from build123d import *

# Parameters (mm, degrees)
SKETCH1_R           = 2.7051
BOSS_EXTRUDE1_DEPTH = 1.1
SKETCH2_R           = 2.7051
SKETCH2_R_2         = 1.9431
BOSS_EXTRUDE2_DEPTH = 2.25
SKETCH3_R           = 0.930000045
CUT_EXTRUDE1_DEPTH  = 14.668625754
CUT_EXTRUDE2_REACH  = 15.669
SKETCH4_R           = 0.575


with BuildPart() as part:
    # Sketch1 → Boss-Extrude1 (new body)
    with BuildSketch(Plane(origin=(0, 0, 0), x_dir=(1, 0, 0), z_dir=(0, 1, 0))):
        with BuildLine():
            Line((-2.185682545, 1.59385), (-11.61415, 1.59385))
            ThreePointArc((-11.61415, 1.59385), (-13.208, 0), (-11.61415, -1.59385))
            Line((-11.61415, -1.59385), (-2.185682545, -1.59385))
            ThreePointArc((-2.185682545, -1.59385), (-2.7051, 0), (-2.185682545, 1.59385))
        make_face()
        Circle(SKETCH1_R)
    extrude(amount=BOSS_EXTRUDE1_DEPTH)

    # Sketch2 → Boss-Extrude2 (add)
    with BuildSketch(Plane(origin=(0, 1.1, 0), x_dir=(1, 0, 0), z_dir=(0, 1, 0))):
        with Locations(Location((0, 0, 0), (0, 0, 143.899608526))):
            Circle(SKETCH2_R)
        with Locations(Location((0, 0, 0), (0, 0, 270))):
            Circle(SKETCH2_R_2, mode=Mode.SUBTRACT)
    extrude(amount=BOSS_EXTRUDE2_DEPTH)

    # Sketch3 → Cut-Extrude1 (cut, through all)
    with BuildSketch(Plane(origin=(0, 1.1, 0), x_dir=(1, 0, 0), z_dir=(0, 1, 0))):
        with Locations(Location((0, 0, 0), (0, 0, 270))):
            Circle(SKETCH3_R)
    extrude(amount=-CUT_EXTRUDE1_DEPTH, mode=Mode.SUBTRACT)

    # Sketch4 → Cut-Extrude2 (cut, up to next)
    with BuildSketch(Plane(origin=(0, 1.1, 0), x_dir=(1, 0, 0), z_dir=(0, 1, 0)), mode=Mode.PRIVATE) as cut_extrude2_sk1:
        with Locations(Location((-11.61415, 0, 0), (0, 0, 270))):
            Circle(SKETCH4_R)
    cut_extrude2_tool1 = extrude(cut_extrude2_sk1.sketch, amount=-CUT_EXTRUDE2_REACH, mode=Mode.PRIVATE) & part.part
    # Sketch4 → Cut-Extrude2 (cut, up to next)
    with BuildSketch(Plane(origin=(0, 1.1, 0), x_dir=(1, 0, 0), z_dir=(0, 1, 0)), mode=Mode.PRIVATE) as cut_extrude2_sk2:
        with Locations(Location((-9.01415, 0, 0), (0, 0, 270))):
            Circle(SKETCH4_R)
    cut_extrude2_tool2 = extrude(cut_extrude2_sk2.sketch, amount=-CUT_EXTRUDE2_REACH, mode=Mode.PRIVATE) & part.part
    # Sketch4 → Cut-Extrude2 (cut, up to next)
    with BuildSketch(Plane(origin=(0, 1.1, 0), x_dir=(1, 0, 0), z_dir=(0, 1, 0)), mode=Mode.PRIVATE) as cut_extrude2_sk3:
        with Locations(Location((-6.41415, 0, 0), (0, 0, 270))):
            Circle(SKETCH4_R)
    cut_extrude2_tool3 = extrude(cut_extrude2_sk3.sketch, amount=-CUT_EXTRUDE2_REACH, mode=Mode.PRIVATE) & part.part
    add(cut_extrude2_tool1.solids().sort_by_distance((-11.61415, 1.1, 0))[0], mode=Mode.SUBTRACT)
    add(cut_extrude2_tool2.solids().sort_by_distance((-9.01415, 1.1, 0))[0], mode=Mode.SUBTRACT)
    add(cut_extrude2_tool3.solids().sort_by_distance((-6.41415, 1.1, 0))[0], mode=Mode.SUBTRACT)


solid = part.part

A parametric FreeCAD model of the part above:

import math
import FreeCAD as App
import Part
import Sketcher
from FreeCAD import Vector
Q = App.Units.Quantity

doc = App.newDocument("Part")
body = doc.addObject("PartDesign::Body", "Body")

sketch1 = doc.addObject("Sketcher::SketchObject", "Sketch")
body.addObject(sketch1)
sketch1.AttachmentSupport = (doc.XZ_Plane, [""])
sketch1.MapMode = "FlatFace"
sketch1.addGeometry([
    Part.LineSegment(Vector(-2.2, -1.6, 0), Vector(-11.6, -1.6, 0)),
    Part.ArcOfCircle(Part.Circle(Vector(-11.6, 0, 0), Vector(0, 0, 1), 1.6), math.radians(90), math.radians(270)),
    Part.LineSegment(Vector(-11.6, 1.6, 0), Vector(-2.2, 1.6, 0)),
    Part.ArcOfCircle(Part.Circle(Vector(0, 0, 0), Vector(0, 0, 1), 2.7), math.radians(-144), math.radians(144)),
], False)
sketch1.addConstraint([
    Sketcher.Constraint("Tangent", 0, 2, 1, 2),
    Sketcher.Constraint("Tangent", 1, 1, 2, 1),
    Sketcher.Constraint("Coincident", 2, 2, 3, 2),
    Sketcher.Constraint("Coincident", 3, 1, 0, 1),
    Sketcher.Constraint("Horizontal", 0),
    Sketcher.Constraint("Horizontal", 2),
    Sketcher.Constraint("Coincident", 3, 3, -1, 1),
    Sketcher.Constraint("PointOnObject", 1, 3, -1),
    Sketcher.Constraint("Radius", 3, Q("0.1065 in")),
    Sketcher.Constraint("Radius", 1, Q("1.59385 mm")),
    Sketcher.Constraint("DistanceX", 0, 2, 0, 1, Q("9.428467 mm")),
])
pad1 = doc.addObject("PartDesign::Pad", "Pad")
body.addObject(pad1)
pad1.Profile = sketch1
pad1.Length = 1.1
pad1.Reversed = True

sketch2 = doc.addObject("Sketcher::SketchObject", "Sketch001")
body.addObject(sketch2)
sketch2.AttachmentSupport = (doc.XZ_Plane, [""])
sketch2.MapMode = "FlatFace"
sketch2.AttachmentOffset = App.Placement(Vector(0, 0, -1.1), App.Rotation())
sketch2.addGeometry([
    Part.Circle(Vector(0, 0, 0), Vector(0, 0, 1), 2.7),
    Part.Circle(Vector(0, 0, 0), Vector(0, 0, 1), 1.9),
], False)
sketch2.addConstraint([
    Sketcher.Constraint("Coincident", 0, 3, -1, 1),
    Sketcher.Constraint("Coincident", 1, 3, -1, 1),
    Sketcher.Constraint("Diameter", 0, Q("0.213 in")),
    Sketcher.Constraint("Diameter", 1, Q("0.153 in")),
])
pad2 = doc.addObject("PartDesign::Pad", "Pad001")
body.addObject(pad2)
pad2.Profile = sketch2
pad2.Length = 2.25
pad2.Reversed = True

sketch3 = doc.addObject("Sketcher::SketchObject", "Sketch002")
body.addObject(sketch3)
sketch3.AttachmentSupport = (doc.XZ_Plane, [""])
sketch3.MapMode = "FlatFace"
sketch3.AttachmentOffset = App.Placement(Vector(0, 0, -1.1), App.Rotation())
sketch3.addGeometry(Part.Circle(Vector(0, 0, 0), Vector(0, 0, 1), 0.9), False)
sketch3.addConstraint([
    Sketcher.Constraint("Coincident", 0, 3, -1, 1),
    Sketcher.Constraint("Diameter", 0, Q("1.86 mm")),
])
pocket1 = doc.addObject("PartDesign::Pocket", "Pocket")
body.addObject(pocket1)
pocket1.Profile = sketch3
pocket1.Type = "ThroughAll"
pocket1.Reversed = True

sketch4 = doc.addObject("Sketcher::SketchObject", "Sketch003")
body.addObject(sketch4)
sketch4.AttachmentSupport = (doc.XZ_Plane, [""])
sketch4.MapMode = "FlatFace"
sketch4.AttachmentOffset = App.Placement(Vector(0, 0, -1.1), App.Rotation())
sketch4.addGeometry(Part.Circle(Vector(-11.6, 0, 0), Vector(0, 0, 1), 0.6), False)
sketch4.addConstraint([
    Sketcher.Constraint("PointOnObject", 0, 3, -1),
    Sketcher.Constraint("Diameter", 0, Q("1.15 mm")),
    Sketcher.Constraint("DistanceX", 0, 3, -1, 1, Q("11.61415 mm")),
])
pocket2 = doc.addObject("PartDesign::Pocket", "Pocket001")
body.addObject(pocket2)
pocket2.Profile = sketch4
pocket2.Type = "UpToFirst"
pocket2.Reversed = True

sketch5 = doc.addObject("Sketcher::SketchObject", "Sketch004")
body.addObject(sketch5)
sketch5.AttachmentSupport = (doc.XZ_Plane, [""])
sketch5.MapMode = "FlatFace"
sketch5.AttachmentOffset = App.Placement(Vector(0, 0, -1.1), App.Rotation())
sketch5.addGeometry(Part.Circle(Vector(-9, 0, 0), Vector(0, 0, 1), 0.6), False)
sketch5.addConstraint([
    Sketcher.Constraint("PointOnObject", 0, 3, -1),
    Sketcher.Constraint("Diameter", 0, Q("1.15 mm")),
    Sketcher.Constraint("DistanceX", 0, 3, -1, 1, Q("9.01415 mm")),
])
pocket3 = doc.addObject("PartDesign::Pocket", "Pocket002")
body.addObject(pocket3)
pocket3.Profile = sketch5
pocket3.Type = "UpToFirst"
pocket3.Reversed = True

sketch6 = doc.addObject("Sketcher::SketchObject", "Sketch005")
body.addObject(sketch6)
sketch6.AttachmentSupport = (doc.XZ_Plane, [""])
sketch6.MapMode = "FlatFace"
sketch6.AttachmentOffset = App.Placement(Vector(0, 0, -1.1), App.Rotation())
sketch6.addGeometry(Part.Circle(Vector(-6.4, 0, 0), Vector(0, 0, 1), 0.6), False)
sketch6.addConstraint([
    Sketcher.Constraint("PointOnObject", 0, 3, -1),
    Sketcher.Constraint("Diameter", 0, Q("1.15 mm")),
    Sketcher.Constraint("DistanceX", 0, 3, -1, 1, Q("6.41415 mm")),
])
pocket4 = doc.addObject("PartDesign::Pocket", "Pocket003")
body.addObject(pocket4)
pocket4.Profile = sketch6
pocket4.Type = "UpToFirst"
pocket4.Reversed = True

doc.recompute()
